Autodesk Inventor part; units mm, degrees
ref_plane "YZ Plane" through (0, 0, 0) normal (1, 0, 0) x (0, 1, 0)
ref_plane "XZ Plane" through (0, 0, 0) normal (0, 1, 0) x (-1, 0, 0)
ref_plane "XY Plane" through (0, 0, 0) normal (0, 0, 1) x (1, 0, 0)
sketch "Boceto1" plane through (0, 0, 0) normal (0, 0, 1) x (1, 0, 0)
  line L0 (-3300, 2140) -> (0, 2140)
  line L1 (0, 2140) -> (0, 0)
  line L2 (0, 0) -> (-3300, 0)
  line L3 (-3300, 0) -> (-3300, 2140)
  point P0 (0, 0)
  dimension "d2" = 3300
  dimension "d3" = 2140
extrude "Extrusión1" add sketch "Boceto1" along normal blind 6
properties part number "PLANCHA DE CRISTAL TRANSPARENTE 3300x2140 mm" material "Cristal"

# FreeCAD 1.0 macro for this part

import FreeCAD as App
import Part
import Sketcher
Q = App.Units.Quantity

doc = App.newDocument("Part")
body = doc.addObject("PartDesign::Body", "Body")

# Sketch on XY plane
sketch1 = body.newObject("Sketcher::SketchObject", "Sketch")
sketch1.AttachmentSupport = (doc.getObject("XY_Plane"), [""])
sketch1.MapMode = "FlatFace"
sketch1.addGeometry(Part.LineSegment(App.Vector(0, 2140, 0), App.Vector(-3300, 2140, 0)), False)
sketch1.addGeometry(Part.LineSegment(App.Vector(-3300, 2140, 0), App.Vector(-3300, 0, 0)), False)
sketch1.addGeometry(Part.LineSegment(App.Vector(-3300, 0, 0), App.Vector(0, 0, 0)), False)
sketch1.addGeometry(Part.LineSegment(App.Vector(0, 0, 0), App.Vector(0, 2140, 0)), False)
sketch1.addConstraint(Sketcher.Constraint("Coincident", 0, 2, 1, 1))
sketch1.addConstraint(Sketcher.Constraint("Coincident", 1, 2, 2, 1))
sketch1.addConstraint(Sketcher.Constraint("Coincident", 2, 2, 3, 1))
sketch1.addConstraint(Sketcher.Constraint("Coincident", 3, 2, 0, 1))
sketch1.addConstraint(Sketcher.Constraint("Horizontal", 0))
sketch1.addConstraint(Sketcher.Constraint("Vertical", 1))
sketch1.addConstraint(Sketcher.Constraint("Horizontal", 2))
sketch1.addConstraint(Sketcher.Constraint("Vertical", 3))
sketch1.addConstraint(Sketcher.Constraint("Coincident", 2, 2, -1, 1))
sketch1.addConstraint(Sketcher.Constraint("DistanceX", 0, 2, 0, 1, Q("3300 mm")))
sketch1.addConstraint(Sketcher.Constraint("DistanceY", 1, 2, 1, 1, Q("2140 mm")))
pad1 = body.newObject("PartDesign::Pad", "Pad")
pad1.Profile = sketch1
pad1.Length = 6

doc.recompute()
